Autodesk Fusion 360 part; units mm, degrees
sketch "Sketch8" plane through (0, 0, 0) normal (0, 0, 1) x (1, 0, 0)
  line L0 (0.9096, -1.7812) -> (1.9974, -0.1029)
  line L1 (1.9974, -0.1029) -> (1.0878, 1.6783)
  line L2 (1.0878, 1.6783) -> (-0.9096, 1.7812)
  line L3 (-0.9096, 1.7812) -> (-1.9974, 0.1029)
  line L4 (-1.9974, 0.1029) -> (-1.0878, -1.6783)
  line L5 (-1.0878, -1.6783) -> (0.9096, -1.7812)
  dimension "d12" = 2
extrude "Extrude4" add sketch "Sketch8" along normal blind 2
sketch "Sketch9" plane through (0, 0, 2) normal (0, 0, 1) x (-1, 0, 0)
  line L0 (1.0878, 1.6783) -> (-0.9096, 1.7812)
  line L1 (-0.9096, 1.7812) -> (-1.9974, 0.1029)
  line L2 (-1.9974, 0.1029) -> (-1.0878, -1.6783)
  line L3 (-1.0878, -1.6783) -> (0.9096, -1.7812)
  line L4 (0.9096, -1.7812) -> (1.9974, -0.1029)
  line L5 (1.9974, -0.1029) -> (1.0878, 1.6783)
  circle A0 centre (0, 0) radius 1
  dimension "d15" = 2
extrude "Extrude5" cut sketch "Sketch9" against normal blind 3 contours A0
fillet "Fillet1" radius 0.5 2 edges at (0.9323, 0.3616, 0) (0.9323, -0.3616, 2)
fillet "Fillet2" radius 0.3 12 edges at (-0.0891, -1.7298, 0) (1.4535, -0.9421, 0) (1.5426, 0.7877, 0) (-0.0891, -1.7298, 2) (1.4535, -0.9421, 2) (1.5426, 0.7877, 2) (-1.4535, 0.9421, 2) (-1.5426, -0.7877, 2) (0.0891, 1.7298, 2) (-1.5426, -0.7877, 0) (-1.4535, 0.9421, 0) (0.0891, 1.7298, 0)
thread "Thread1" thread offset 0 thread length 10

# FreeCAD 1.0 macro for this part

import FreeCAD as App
import Part
import Sketcher
from FreeCAD import Vector
Q = App.Units.Quantity


def edges_at(feature, points):
    """Names of the edges that pass closest to the given points."""
    edges = feature.Shape.Edges
    near = lambda p: min(range(len(edges)), key=lambda i: edges[i].distToShape(Part.Vertex(*p))[0])
    return sorted({f"Edge{near(p) + 1}" for p in points})


def add_polygon(sketch, points):
    """Adds a closed chain of lines whose ends are joined by coincident constraints."""
    first, n = sketch.GeometryCount, len(points)
    for a, b in zip(points, points[1:] + points[:1]):
        sketch.addGeometry(Part.LineSegment(App.Vector(*a, 0), App.Vector(*b, 0)), False)
    for i in range(n):
        sketch.addConstraint(Sketcher.Constraint("Coincident", first + i, 2, first + (i + 1) % n, 1))

doc = App.newDocument("Part")
body = doc.addObject("PartDesign::Body", "Body")

sketch1 = doc.addObject("Sketcher::SketchObject", "Sketch")
body.addObject(sketch1)
sketch1.AttachmentSupport = (doc.XY_Plane, [""])
sketch1.MapMode = "FlatFace"
add_polygon(sketch1, [(-1.1, -1.7), (0.9, -1.8), (2, -0.1), (1.1, 1.7), (-0.9, 1.8), (-2, 0.1)])
sketch1.addConstraint([
    Sketcher.Constraint("Symmetric", 0, 2, 3, 2, -1, 1),
    Sketcher.Constraint("Symmetric", 1, 2, 4, 2, -1, 1),
    Sketcher.Constraint("Symmetric", 2, 2, 5, 2, -1, 1),
    Sketcher.Constraint("Equal", 0, 1),
    Sketcher.Constraint("Equal", 1, 2),
    Sketcher.Constraint("Distance", 0, Q("2 mm")),
    Sketcher.Constraint("Angle", 0, Q("-2.949 deg")),
    Sketcher.Constraint("Angle", 1, Q("57.0505 deg")),
    Sketcher.Constraint("DistanceY", 1, 2, -1, 1, Q("0.103 mm")),
])
pad1 = doc.addObject("PartDesign::Pad", "Pad")
body.addObject(pad1)
pad1.Profile = sketch1
pad1.Length = 2

sketch2 = doc.addObject("Sketcher::SketchObject", "Sketch001")
body.addObject(sketch2)
sketch2.AttachmentSupport = (doc.XY_Plane, [""])
sketch2.MapMode = "FlatFace"
sketch2.AttachmentOffset = App.Placement(Vector(0, 0, 2), App.Rotation())
sketch2.addGeometry(Part.Circle(Vector(0, 0, 0), Vector(0, 0, 1), 1), False)
sketch2.addConstraint([
    Sketcher.Constraint("Coincident", 0, 3, -1, 1),
    Sketcher.Constraint("Diameter", 0, Q("2 mm")),
])
pocket1 = doc.addObject("PartDesign::Pocket", "Pocket")
body.addObject(pocket1)
pocket1.Profile = sketch2
pocket1.Length = 3
doc.recompute()

fillet = doc.addObject("PartDesign::Fillet", "Fillet")
body.addObject(fillet)
fillet.Base = (pocket1, edges_at(pocket1, [(0.932, 0.362, 0), (0.932, -0.362, 2)]))
fillet.Radius = 0.5
doc.recompute()

fillet2 = doc.addObject("PartDesign::Fillet", "Fillet001")
body.addObject(fillet2)
fillet2.Base = (fillet, edges_at(fillet, [
    (-0.089, -1.73, 0),
    (1.454, -0.942, 0),
    (1.543, 0.788, 0),
    (-0.089, -1.73, 2),
    (1.454, -0.942, 2),
    (1.543, 0.788, 2),
    (-1.454, 0.942, 2),
    (-1.543, -0.788, 2),
    (0.089, 1.73, 2),
    (-1.543, -0.788, 0),
    (-1.454, 0.942, 0),
    (0.089, 1.73, 0),
]))
fillet2.Radius = 0.3

doc.recompute()
